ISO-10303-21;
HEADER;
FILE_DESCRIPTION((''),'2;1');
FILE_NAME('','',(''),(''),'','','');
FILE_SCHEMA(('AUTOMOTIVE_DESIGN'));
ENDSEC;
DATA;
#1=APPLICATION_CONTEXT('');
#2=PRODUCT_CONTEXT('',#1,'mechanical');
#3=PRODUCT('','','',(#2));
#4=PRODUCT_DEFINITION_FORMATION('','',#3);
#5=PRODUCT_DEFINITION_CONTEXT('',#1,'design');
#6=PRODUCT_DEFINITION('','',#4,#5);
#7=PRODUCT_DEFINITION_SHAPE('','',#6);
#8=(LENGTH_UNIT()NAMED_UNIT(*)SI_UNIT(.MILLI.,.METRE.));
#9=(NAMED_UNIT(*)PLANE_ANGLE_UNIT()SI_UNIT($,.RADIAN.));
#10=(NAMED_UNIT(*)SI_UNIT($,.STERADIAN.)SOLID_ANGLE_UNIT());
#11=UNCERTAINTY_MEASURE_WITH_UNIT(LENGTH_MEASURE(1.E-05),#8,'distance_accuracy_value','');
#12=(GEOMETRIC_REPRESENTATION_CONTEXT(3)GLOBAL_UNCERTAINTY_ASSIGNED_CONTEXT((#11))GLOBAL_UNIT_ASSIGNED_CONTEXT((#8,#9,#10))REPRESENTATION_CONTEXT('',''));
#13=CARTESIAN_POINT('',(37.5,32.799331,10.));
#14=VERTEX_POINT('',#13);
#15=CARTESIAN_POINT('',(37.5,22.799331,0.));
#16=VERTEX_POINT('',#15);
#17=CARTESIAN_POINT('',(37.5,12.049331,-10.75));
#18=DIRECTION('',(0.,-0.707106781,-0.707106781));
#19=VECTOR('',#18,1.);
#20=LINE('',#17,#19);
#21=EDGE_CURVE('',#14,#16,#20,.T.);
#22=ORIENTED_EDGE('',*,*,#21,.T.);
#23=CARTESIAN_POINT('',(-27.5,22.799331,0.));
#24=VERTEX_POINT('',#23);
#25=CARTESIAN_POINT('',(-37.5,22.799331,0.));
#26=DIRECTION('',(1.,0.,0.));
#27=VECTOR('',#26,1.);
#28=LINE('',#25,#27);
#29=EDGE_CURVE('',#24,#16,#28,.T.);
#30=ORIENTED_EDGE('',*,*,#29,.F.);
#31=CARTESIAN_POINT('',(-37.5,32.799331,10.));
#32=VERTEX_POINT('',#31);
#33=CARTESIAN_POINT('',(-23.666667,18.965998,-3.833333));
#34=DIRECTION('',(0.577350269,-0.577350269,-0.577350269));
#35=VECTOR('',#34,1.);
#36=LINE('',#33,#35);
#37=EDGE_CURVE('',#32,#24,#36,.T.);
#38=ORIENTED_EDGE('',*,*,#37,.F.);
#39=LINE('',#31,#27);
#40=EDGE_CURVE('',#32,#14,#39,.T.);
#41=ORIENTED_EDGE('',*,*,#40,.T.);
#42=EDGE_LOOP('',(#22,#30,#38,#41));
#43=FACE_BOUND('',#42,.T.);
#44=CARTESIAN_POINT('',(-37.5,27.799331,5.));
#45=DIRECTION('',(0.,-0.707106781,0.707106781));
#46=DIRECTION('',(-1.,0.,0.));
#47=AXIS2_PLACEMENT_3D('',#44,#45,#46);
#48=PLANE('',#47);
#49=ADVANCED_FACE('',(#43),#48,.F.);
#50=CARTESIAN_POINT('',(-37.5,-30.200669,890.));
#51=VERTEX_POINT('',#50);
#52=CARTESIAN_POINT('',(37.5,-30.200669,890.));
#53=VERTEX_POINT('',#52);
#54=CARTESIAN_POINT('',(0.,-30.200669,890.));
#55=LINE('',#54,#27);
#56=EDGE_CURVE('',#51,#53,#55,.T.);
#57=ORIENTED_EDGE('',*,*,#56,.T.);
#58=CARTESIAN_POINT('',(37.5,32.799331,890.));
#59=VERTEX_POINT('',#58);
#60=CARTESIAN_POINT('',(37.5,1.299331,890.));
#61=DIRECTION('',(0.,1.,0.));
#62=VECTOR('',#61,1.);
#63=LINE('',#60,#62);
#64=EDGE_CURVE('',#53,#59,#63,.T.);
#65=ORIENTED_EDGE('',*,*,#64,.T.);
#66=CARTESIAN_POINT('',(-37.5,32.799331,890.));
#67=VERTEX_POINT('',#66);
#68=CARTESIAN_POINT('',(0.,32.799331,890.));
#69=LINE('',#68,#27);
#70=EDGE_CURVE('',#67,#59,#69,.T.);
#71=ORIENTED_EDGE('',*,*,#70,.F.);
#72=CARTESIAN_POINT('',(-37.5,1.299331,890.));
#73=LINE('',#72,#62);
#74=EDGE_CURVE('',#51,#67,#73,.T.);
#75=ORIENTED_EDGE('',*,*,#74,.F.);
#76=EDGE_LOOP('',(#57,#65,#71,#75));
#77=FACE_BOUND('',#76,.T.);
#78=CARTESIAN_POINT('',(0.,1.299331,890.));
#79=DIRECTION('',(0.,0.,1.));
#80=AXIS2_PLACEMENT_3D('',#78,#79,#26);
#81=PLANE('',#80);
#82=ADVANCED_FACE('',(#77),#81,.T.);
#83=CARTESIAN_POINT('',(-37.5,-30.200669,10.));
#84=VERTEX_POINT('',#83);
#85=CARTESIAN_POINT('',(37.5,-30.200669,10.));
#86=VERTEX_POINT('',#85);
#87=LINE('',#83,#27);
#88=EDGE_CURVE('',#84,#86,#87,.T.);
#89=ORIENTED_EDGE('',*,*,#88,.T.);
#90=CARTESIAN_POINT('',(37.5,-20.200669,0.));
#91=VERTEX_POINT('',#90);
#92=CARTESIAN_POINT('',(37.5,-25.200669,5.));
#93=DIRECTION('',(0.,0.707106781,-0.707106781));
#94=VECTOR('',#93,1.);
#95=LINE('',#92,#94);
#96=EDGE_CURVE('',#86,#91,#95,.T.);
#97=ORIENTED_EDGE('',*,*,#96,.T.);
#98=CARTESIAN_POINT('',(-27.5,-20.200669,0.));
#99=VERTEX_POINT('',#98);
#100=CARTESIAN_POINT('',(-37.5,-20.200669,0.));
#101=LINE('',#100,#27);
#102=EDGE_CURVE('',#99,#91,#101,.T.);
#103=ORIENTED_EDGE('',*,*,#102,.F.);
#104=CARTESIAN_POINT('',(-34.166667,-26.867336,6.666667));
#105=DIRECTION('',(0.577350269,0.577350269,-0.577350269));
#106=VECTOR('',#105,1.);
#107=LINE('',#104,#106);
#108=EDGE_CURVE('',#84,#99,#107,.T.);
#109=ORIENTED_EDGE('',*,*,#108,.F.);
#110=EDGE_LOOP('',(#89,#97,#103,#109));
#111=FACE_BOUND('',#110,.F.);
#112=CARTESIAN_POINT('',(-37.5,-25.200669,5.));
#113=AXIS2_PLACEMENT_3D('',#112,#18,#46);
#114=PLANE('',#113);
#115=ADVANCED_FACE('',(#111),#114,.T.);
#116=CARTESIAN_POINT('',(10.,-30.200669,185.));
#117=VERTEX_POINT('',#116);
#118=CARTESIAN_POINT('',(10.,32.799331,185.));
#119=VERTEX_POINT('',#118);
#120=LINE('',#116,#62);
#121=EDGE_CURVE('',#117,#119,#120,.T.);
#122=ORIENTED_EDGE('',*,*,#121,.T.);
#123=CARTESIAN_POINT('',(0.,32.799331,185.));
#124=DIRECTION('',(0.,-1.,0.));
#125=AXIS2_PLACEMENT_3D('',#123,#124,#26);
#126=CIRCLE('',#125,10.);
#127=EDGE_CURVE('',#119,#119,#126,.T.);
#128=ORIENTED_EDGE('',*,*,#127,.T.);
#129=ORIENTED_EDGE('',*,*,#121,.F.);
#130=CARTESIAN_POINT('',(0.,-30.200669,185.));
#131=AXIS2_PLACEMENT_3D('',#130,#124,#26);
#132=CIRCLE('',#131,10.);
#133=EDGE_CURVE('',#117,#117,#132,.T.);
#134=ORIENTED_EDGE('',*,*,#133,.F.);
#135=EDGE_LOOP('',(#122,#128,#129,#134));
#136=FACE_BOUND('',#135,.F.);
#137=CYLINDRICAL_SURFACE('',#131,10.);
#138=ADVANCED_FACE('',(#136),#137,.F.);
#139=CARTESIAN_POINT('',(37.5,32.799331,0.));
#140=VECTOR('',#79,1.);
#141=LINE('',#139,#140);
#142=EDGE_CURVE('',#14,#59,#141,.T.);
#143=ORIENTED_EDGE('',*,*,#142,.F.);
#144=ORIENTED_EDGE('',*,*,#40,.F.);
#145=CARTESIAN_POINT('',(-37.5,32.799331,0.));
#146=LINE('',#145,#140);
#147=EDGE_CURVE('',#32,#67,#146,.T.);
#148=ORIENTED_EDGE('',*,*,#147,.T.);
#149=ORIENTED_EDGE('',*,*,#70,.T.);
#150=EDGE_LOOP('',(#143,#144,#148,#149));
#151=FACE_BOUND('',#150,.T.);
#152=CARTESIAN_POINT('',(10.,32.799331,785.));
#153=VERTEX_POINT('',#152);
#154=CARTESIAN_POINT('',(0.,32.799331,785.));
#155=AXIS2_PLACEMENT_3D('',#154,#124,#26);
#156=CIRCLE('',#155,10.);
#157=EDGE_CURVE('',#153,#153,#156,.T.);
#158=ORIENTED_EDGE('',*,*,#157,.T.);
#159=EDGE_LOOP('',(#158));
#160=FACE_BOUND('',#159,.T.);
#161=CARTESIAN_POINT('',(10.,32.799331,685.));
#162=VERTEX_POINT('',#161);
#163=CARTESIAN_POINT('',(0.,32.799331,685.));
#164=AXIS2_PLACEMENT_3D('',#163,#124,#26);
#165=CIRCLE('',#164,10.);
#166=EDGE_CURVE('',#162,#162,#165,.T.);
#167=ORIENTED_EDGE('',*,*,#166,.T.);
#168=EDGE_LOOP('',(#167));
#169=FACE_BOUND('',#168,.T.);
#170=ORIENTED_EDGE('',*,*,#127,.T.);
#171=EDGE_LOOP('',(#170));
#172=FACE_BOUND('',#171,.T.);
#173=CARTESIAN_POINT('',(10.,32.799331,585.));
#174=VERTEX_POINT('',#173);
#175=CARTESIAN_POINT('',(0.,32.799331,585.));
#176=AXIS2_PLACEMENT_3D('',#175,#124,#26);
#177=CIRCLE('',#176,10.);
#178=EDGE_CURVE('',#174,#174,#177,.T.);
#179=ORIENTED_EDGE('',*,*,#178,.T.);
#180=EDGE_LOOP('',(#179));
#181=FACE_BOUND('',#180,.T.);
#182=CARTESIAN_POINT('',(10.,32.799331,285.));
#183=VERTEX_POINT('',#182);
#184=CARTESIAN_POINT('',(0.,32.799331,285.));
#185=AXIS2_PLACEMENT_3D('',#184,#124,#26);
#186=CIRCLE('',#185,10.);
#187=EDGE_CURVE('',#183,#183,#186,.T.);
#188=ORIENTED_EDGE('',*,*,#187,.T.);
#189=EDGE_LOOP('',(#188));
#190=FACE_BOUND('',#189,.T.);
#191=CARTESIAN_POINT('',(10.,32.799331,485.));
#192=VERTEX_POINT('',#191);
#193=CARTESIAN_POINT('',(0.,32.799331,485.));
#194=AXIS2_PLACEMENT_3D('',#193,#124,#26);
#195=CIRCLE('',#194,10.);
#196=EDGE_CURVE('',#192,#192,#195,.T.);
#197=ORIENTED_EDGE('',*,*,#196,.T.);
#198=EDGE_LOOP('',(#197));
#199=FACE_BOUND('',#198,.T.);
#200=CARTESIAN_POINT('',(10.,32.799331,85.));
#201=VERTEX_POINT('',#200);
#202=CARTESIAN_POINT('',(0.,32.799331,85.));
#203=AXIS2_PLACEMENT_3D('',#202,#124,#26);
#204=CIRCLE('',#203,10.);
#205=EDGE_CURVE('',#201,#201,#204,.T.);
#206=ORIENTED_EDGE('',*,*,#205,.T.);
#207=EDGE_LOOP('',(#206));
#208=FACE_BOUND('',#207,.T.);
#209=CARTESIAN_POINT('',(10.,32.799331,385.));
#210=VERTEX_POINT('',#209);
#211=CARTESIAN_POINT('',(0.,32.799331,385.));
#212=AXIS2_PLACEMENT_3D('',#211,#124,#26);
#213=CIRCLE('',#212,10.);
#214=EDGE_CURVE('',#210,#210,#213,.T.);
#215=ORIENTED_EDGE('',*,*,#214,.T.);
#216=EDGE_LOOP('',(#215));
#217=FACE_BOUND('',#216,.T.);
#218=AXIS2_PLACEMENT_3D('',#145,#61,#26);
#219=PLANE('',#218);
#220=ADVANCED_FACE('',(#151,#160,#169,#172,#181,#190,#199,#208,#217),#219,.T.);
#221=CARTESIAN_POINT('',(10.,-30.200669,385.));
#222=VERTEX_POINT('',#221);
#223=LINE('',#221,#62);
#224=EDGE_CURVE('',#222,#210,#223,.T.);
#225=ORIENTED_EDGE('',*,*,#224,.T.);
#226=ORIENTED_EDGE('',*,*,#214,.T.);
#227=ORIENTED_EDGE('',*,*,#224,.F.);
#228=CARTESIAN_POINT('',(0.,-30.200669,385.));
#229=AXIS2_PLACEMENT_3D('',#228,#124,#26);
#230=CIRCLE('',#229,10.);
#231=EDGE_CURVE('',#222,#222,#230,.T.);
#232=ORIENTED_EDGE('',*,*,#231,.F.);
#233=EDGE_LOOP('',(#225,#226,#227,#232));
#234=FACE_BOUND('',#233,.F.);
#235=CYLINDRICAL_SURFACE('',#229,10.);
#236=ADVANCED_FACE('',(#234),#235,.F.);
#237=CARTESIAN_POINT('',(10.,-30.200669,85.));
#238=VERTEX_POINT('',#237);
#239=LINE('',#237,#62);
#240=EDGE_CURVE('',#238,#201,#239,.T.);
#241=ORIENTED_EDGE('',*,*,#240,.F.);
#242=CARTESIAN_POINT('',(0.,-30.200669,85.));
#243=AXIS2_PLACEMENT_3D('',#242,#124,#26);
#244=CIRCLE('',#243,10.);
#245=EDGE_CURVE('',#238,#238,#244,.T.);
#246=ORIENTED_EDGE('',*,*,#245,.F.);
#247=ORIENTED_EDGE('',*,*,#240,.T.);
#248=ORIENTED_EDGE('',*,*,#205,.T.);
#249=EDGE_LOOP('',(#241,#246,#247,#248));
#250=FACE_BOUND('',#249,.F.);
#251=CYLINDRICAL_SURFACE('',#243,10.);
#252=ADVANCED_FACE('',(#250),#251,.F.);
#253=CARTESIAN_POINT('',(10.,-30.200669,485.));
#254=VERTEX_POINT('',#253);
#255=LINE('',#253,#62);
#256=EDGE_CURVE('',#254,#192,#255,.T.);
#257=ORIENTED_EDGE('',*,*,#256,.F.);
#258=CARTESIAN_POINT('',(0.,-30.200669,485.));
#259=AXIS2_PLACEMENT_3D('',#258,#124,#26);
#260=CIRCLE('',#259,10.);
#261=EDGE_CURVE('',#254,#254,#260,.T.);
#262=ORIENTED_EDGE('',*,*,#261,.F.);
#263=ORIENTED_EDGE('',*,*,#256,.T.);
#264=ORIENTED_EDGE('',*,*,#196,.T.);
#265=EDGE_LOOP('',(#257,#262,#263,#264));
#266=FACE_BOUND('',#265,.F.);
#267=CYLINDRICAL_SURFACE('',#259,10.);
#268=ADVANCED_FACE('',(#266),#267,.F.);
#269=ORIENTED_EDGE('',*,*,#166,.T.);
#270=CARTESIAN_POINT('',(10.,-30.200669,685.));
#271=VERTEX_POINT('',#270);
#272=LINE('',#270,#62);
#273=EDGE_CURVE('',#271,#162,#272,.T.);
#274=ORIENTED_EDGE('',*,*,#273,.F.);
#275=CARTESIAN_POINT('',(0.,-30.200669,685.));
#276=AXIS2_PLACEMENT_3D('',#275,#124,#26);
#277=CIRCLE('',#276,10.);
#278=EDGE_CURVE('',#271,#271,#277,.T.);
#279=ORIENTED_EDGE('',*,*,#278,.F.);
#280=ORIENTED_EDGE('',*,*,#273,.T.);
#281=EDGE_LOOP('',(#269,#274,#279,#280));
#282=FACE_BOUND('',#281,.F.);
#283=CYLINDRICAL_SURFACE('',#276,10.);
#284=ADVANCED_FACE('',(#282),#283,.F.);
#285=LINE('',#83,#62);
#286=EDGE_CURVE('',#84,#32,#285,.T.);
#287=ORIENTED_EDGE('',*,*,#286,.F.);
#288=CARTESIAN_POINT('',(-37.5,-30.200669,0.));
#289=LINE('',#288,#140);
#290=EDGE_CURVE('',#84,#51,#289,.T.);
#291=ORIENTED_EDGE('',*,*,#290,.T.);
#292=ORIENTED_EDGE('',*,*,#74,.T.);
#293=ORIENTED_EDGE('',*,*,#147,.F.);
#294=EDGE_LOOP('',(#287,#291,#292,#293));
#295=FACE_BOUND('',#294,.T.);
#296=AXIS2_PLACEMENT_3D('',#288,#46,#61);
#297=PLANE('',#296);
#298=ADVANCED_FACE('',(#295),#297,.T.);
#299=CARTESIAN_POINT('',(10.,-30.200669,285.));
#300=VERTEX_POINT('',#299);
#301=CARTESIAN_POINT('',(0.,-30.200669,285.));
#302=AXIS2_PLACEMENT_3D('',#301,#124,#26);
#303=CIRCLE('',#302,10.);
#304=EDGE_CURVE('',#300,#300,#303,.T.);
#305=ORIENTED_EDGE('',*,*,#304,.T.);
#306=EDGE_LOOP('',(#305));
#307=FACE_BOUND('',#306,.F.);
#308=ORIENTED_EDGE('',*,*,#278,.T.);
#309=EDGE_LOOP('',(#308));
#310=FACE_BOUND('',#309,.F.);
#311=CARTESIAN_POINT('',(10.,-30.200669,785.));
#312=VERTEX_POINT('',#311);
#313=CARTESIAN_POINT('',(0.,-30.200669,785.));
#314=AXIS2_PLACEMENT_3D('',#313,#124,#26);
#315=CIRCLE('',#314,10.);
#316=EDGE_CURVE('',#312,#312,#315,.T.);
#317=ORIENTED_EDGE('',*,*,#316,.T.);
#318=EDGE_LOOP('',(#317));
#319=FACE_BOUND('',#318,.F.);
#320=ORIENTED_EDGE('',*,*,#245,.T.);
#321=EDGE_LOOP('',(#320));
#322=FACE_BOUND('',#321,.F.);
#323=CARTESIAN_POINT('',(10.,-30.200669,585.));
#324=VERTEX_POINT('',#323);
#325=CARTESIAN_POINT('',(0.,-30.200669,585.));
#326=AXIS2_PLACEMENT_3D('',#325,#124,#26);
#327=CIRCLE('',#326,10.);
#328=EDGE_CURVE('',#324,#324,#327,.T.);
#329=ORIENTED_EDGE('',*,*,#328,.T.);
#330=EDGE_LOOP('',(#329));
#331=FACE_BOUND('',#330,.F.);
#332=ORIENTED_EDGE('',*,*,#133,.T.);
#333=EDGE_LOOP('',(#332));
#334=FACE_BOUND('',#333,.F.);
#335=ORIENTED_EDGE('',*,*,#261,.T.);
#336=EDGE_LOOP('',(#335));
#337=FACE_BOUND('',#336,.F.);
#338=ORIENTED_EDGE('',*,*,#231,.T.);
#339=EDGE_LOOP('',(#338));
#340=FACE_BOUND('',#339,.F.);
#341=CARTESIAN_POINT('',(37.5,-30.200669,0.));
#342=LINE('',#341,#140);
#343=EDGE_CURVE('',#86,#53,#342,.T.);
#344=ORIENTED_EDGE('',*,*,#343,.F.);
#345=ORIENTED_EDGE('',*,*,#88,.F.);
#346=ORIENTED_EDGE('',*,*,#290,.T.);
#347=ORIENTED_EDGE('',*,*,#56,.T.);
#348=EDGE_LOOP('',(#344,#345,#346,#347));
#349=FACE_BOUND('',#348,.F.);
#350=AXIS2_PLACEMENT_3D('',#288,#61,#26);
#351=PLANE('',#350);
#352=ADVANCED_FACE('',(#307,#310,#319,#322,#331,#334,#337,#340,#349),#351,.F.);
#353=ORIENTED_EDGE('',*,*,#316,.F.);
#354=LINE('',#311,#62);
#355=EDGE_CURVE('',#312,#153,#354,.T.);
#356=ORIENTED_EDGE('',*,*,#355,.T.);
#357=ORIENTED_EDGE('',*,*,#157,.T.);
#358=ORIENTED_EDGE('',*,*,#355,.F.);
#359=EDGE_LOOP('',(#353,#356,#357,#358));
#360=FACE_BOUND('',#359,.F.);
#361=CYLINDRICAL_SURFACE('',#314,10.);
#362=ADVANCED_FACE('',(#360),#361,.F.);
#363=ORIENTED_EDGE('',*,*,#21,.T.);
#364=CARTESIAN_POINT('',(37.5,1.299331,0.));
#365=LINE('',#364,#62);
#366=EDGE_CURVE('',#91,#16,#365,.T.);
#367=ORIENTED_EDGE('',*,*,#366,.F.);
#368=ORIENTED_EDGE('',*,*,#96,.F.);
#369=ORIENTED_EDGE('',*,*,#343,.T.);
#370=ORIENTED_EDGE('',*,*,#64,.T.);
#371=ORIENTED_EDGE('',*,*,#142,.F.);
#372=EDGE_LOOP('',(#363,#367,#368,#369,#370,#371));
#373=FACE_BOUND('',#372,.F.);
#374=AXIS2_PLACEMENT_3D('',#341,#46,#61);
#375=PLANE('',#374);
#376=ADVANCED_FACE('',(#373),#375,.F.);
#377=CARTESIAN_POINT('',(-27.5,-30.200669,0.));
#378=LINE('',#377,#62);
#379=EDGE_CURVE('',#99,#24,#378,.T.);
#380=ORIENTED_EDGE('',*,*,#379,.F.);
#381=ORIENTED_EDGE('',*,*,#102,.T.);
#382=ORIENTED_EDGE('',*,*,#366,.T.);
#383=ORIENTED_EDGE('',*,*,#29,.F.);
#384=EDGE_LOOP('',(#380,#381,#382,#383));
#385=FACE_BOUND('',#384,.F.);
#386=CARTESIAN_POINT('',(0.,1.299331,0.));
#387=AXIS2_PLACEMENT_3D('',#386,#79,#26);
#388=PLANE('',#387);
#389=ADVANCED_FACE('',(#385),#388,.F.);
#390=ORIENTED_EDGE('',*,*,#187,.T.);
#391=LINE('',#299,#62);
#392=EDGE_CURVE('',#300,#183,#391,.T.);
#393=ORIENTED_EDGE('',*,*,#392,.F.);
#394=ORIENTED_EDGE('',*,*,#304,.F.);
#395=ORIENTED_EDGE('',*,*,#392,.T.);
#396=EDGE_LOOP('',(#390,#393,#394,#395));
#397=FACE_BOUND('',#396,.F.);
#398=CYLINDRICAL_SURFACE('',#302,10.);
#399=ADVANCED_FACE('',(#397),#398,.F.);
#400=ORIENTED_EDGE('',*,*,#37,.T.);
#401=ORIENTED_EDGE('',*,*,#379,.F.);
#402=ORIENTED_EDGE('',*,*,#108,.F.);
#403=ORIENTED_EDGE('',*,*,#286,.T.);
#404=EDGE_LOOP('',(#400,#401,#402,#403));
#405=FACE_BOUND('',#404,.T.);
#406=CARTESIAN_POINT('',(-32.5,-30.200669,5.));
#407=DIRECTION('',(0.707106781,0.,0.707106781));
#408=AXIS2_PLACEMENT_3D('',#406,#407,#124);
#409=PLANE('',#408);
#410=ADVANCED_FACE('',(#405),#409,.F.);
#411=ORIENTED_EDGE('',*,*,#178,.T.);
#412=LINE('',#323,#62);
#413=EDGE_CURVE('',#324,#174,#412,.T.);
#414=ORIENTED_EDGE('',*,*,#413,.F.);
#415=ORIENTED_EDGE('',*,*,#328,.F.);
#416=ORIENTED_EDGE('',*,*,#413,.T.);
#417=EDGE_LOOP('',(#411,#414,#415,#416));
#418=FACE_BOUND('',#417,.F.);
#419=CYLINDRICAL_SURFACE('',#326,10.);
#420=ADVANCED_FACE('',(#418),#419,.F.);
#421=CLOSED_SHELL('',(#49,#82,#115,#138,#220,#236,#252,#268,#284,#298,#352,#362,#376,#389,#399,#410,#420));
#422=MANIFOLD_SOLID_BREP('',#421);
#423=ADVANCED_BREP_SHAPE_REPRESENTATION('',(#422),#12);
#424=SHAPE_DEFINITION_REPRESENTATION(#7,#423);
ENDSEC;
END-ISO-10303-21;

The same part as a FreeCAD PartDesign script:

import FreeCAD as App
import Part
import Sketcher

V = App.Vector


def edges_at(feature, points):
    """Names of the edges that pass closest to the given points."""
    edges = feature.Shape.Edges
    near = lambda p: min(range(len(edges)), key=lambda i: edges[i].distToShape(Part.Vertex(*p))[0])
    return sorted({f"Edge{near(p) + 1}" for p in points})


def add_polygon(sketch, points):
    """Adds a closed chain of lines whose ends are joined by coincident constraints."""
    first, n = sketch.GeometryCount, len(points)
    for a, b in zip(points, points[1:] + points[:1]):
        sketch.addGeometry(Part.LineSegment(App.Vector(*a, 0), App.Vector(*b, 0)), False)
    for i in range(n):
        sketch.addConstraint(Sketcher.Constraint("Coincident", first + i, 2, first + (i + 1) % n, 1))

doc = App.newDocument("Part")
body = doc.addObject("PartDesign::Body", "Body")

# Sketch on XY plane
sketch1 = body.newObject("Sketcher::SketchObject", "Sketch")
sketch1.AttachmentSupport = (doc.getObject("XY_Plane"), [""])
sketch1.MapMode = "FlatFace"
add_polygon(sketch1, [(-38, 33), (-38, -30), (38, -30), (38, 33)])  # lines 0-3
sketch1.addConstraint([
    Sketcher.Constraint("Vertical", 0),
    Sketcher.Constraint("Horizontal", 1),
    Sketcher.Constraint("Vertical", 2),
    Sketcher.Constraint("Horizontal", 3),
    Sketcher.Constraint("DistanceX", 1, 1, 1, 2, 75.0),
    Sketcher.Constraint("DistanceY", 0, 2, 0, 1, 63.0),
    Sketcher.Constraint("DistanceX", 0, 2, -1, 1, 37.5),
    Sketcher.Constraint("DistanceY", 0, 2, -1, 1, 30.200669),
])
pad1 = body.newObject("PartDesign::Pad", "Pad")
pad1.Profile = sketch1
pad1.Length = 890

# Sketch on XZ plane
sketch2 = body.newObject("Sketcher::SketchObject", "Sketch001")
sketch2.AttachmentSupport = (doc.getObject("XZ_Plane"), [""])
sketch2.MapMode = "FlatFace"
sketch2.AttachmentOffset = App.Placement(V(0, 0, 30.200669), App.Rotation())
sketch2.addGeometry([
    Part.Circle(V(0, 85, 0), V(0, 0, 1), 10),  # 0
    Part.Circle(V(0, 185, 0), V(0, 0, 1), 10),  # 1
    Part.Circle(V(0, 285, 0), V(0, 0, 1), 10),  # 2
    Part.Circle(V(0, 385, 0), V(0, 0, 1), 10),  # 3
    Part.Circle(V(0, 485, 0), V(0, 0, 1), 10),  # 4
    Part.Circle(V(0, 585, 0), V(0, 0, 1), 10),  # 5
    Part.Circle(V(0, 685, 0), V(0, 0, 1), 10),  # 6
    Part.Circle(V(0, 785, 0), V(0, 0, 1), 10),  # 7
], False)
sketch2.addConstraint([
    Sketcher.Constraint("Equal", 0, 1),
    Sketcher.Constraint("Equal", 1, 2),
    Sketcher.Constraint("Equal", 2, 3),
    Sketcher.Constraint("Equal", 3, 4),
    Sketcher.Constraint("Equal", 4, 5),
    Sketcher.Constraint("Equal", 5, 6),
    Sketcher.Constraint("Equal", 6, 7),
    Sketcher.Constraint("PointOnObject", 0, 3, -2),
    Sketcher.Constraint("PointOnObject", 1, 3, -2),
    Sketcher.Constraint("PointOnObject", 2, 3, -2),
    Sketcher.Constraint("PointOnObject", 3, 3, -2),
    Sketcher.Constraint("PointOnObject", 4, 3, -2),
    Sketcher.Constraint("PointOnObject", 5, 3, -2),
    Sketcher.Constraint("PointOnObject", 6, 3, -2),
    Sketcher.Constraint("PointOnObject", 7, 3, -2),
    Sketcher.Constraint("Diameter", 0, 20.0),
    Sketcher.Constraint("DistanceY", -1, 1, 0, 3, 85.0),
    Sketcher.Constraint("DistanceY", -1, 1, 1, 3, 185.0),
    Sketcher.Constraint("DistanceY", -1, 1, 2, 3, 285.0),
    Sketcher.Constraint("DistanceY", -1, 1, 3, 3, 385.0),
    Sketcher.Constraint("DistanceY", -1, 1, 4, 3, 485.0),
    Sketcher.Constraint("DistanceY", -1, 1, 5, 3, 585.0),
    Sketcher.Constraint("DistanceY", -1, 1, 6, 3, 685.0),
    Sketcher.Constraint("DistanceY", -1, 1, 7, 3, 785.0),
])
pocket1 = body.newObject("PartDesign::Pocket", "Pocket")
pocket1.Profile = sketch2
pocket1.Type = "ThroughAll"
doc.recompute()

chamfer = body.newObject("PartDesign::Chamfer", "Chamfer")
chamfer.Base = (pocket1, edges_at(pocket1, [(0, 32.799, 0), (-37.5, 1.299, 0), (0, -30.201, 0)]))
chamfer.Size = 10

doc.recompute()
